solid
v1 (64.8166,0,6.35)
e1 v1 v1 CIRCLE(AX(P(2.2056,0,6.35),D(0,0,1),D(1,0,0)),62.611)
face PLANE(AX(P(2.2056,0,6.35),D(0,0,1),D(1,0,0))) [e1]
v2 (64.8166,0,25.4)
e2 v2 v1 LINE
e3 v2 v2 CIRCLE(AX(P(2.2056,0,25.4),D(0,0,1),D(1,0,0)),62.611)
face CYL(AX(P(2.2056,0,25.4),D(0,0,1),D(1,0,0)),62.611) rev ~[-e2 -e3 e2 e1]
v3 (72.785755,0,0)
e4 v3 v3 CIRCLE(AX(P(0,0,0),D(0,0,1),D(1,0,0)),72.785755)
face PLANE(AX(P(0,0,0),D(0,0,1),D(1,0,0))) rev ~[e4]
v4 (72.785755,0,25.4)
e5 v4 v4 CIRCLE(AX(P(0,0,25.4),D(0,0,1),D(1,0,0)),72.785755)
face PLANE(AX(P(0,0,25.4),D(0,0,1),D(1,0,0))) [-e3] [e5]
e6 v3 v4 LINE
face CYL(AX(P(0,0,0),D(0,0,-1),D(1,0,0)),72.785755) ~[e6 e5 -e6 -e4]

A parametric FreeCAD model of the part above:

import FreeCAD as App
import Part
import Sketcher
Q = App.Units.Quantity

doc = App.newDocument("Part")
params = doc.addObject("Spreadsheet::Sheet", "Params")
for row, (alias, value) in enumerate([
    ("pad1_length", "1 in"),
    ("sketch2_diameter", "4.93 in"),
    ("pocket1_length", "0.75 in"),
], start=1):
    params.set(f"A{row}", alias)
    params.set(f"B{row}", "=" + value)
    params.setAlias(f"B{row}", alias)

body = doc.addObject("PartDesign::Body", "Body")

# Sketch on XY plane
sketch1 = doc.addObject("Sketcher::SketchObject", "Sketch")
body.addObject(sketch1)
sketch1.AttachmentSupport = (doc.XY_Plane, [""])
sketch1.MapMode = "FlatFace"
sketch1.addGeometry(Part.Circle(App.Vector(0, 0, 0), App.Vector(0, 0, 1), 72.785755), False)
sketch1.addConstraint([
    Sketcher.Constraint("Coincident", 0, 3, -1, 1),
    Sketcher.Constraint("Diameter", 0, Q("145.57151 mm")),
])
pad1 = doc.addObject("PartDesign::Pad", "Pad")
body.addObject(pad1)
pad1.Profile = sketch1
pad1.setExpression("Length", "Params.pad1_length")

# Sketch on XY plane
sketch2 = doc.addObject("Sketcher::SketchObject", "Sketch001")
body.addObject(sketch2)
sketch2.AttachmentSupport = (doc.XY_Plane, [""])
sketch2.MapMode = "FlatFace"
sketch2.AttachmentOffset = App.Placement(App.Vector(0, 0, 1 * 25.4), App.Rotation())
sketch2.addGeometry(Part.Circle(App.Vector(2.2056, 0, 0), App.Vector(0, 0, 1), 62.611), False)
sketch2.addConstraint([
    Sketcher.Constraint("PointOnObject", 0, 3, -1),
    Sketcher.Constraint("Diameter", 0, Q("4.93 in")),
    Sketcher.Constraint("DistanceX", -1, 1, 0, 3, Q("2.2056 mm")),
])
sketch2.setExpression("Constraints[1]", "Params.sketch2_diameter")
pocket1 = doc.addObject("PartDesign::Pocket", "Pocket")
body.addObject(pocket1)
pocket1.Profile = sketch2
pocket1.setExpression("Length", "Params.pocket1_length")

doc.recompute()
